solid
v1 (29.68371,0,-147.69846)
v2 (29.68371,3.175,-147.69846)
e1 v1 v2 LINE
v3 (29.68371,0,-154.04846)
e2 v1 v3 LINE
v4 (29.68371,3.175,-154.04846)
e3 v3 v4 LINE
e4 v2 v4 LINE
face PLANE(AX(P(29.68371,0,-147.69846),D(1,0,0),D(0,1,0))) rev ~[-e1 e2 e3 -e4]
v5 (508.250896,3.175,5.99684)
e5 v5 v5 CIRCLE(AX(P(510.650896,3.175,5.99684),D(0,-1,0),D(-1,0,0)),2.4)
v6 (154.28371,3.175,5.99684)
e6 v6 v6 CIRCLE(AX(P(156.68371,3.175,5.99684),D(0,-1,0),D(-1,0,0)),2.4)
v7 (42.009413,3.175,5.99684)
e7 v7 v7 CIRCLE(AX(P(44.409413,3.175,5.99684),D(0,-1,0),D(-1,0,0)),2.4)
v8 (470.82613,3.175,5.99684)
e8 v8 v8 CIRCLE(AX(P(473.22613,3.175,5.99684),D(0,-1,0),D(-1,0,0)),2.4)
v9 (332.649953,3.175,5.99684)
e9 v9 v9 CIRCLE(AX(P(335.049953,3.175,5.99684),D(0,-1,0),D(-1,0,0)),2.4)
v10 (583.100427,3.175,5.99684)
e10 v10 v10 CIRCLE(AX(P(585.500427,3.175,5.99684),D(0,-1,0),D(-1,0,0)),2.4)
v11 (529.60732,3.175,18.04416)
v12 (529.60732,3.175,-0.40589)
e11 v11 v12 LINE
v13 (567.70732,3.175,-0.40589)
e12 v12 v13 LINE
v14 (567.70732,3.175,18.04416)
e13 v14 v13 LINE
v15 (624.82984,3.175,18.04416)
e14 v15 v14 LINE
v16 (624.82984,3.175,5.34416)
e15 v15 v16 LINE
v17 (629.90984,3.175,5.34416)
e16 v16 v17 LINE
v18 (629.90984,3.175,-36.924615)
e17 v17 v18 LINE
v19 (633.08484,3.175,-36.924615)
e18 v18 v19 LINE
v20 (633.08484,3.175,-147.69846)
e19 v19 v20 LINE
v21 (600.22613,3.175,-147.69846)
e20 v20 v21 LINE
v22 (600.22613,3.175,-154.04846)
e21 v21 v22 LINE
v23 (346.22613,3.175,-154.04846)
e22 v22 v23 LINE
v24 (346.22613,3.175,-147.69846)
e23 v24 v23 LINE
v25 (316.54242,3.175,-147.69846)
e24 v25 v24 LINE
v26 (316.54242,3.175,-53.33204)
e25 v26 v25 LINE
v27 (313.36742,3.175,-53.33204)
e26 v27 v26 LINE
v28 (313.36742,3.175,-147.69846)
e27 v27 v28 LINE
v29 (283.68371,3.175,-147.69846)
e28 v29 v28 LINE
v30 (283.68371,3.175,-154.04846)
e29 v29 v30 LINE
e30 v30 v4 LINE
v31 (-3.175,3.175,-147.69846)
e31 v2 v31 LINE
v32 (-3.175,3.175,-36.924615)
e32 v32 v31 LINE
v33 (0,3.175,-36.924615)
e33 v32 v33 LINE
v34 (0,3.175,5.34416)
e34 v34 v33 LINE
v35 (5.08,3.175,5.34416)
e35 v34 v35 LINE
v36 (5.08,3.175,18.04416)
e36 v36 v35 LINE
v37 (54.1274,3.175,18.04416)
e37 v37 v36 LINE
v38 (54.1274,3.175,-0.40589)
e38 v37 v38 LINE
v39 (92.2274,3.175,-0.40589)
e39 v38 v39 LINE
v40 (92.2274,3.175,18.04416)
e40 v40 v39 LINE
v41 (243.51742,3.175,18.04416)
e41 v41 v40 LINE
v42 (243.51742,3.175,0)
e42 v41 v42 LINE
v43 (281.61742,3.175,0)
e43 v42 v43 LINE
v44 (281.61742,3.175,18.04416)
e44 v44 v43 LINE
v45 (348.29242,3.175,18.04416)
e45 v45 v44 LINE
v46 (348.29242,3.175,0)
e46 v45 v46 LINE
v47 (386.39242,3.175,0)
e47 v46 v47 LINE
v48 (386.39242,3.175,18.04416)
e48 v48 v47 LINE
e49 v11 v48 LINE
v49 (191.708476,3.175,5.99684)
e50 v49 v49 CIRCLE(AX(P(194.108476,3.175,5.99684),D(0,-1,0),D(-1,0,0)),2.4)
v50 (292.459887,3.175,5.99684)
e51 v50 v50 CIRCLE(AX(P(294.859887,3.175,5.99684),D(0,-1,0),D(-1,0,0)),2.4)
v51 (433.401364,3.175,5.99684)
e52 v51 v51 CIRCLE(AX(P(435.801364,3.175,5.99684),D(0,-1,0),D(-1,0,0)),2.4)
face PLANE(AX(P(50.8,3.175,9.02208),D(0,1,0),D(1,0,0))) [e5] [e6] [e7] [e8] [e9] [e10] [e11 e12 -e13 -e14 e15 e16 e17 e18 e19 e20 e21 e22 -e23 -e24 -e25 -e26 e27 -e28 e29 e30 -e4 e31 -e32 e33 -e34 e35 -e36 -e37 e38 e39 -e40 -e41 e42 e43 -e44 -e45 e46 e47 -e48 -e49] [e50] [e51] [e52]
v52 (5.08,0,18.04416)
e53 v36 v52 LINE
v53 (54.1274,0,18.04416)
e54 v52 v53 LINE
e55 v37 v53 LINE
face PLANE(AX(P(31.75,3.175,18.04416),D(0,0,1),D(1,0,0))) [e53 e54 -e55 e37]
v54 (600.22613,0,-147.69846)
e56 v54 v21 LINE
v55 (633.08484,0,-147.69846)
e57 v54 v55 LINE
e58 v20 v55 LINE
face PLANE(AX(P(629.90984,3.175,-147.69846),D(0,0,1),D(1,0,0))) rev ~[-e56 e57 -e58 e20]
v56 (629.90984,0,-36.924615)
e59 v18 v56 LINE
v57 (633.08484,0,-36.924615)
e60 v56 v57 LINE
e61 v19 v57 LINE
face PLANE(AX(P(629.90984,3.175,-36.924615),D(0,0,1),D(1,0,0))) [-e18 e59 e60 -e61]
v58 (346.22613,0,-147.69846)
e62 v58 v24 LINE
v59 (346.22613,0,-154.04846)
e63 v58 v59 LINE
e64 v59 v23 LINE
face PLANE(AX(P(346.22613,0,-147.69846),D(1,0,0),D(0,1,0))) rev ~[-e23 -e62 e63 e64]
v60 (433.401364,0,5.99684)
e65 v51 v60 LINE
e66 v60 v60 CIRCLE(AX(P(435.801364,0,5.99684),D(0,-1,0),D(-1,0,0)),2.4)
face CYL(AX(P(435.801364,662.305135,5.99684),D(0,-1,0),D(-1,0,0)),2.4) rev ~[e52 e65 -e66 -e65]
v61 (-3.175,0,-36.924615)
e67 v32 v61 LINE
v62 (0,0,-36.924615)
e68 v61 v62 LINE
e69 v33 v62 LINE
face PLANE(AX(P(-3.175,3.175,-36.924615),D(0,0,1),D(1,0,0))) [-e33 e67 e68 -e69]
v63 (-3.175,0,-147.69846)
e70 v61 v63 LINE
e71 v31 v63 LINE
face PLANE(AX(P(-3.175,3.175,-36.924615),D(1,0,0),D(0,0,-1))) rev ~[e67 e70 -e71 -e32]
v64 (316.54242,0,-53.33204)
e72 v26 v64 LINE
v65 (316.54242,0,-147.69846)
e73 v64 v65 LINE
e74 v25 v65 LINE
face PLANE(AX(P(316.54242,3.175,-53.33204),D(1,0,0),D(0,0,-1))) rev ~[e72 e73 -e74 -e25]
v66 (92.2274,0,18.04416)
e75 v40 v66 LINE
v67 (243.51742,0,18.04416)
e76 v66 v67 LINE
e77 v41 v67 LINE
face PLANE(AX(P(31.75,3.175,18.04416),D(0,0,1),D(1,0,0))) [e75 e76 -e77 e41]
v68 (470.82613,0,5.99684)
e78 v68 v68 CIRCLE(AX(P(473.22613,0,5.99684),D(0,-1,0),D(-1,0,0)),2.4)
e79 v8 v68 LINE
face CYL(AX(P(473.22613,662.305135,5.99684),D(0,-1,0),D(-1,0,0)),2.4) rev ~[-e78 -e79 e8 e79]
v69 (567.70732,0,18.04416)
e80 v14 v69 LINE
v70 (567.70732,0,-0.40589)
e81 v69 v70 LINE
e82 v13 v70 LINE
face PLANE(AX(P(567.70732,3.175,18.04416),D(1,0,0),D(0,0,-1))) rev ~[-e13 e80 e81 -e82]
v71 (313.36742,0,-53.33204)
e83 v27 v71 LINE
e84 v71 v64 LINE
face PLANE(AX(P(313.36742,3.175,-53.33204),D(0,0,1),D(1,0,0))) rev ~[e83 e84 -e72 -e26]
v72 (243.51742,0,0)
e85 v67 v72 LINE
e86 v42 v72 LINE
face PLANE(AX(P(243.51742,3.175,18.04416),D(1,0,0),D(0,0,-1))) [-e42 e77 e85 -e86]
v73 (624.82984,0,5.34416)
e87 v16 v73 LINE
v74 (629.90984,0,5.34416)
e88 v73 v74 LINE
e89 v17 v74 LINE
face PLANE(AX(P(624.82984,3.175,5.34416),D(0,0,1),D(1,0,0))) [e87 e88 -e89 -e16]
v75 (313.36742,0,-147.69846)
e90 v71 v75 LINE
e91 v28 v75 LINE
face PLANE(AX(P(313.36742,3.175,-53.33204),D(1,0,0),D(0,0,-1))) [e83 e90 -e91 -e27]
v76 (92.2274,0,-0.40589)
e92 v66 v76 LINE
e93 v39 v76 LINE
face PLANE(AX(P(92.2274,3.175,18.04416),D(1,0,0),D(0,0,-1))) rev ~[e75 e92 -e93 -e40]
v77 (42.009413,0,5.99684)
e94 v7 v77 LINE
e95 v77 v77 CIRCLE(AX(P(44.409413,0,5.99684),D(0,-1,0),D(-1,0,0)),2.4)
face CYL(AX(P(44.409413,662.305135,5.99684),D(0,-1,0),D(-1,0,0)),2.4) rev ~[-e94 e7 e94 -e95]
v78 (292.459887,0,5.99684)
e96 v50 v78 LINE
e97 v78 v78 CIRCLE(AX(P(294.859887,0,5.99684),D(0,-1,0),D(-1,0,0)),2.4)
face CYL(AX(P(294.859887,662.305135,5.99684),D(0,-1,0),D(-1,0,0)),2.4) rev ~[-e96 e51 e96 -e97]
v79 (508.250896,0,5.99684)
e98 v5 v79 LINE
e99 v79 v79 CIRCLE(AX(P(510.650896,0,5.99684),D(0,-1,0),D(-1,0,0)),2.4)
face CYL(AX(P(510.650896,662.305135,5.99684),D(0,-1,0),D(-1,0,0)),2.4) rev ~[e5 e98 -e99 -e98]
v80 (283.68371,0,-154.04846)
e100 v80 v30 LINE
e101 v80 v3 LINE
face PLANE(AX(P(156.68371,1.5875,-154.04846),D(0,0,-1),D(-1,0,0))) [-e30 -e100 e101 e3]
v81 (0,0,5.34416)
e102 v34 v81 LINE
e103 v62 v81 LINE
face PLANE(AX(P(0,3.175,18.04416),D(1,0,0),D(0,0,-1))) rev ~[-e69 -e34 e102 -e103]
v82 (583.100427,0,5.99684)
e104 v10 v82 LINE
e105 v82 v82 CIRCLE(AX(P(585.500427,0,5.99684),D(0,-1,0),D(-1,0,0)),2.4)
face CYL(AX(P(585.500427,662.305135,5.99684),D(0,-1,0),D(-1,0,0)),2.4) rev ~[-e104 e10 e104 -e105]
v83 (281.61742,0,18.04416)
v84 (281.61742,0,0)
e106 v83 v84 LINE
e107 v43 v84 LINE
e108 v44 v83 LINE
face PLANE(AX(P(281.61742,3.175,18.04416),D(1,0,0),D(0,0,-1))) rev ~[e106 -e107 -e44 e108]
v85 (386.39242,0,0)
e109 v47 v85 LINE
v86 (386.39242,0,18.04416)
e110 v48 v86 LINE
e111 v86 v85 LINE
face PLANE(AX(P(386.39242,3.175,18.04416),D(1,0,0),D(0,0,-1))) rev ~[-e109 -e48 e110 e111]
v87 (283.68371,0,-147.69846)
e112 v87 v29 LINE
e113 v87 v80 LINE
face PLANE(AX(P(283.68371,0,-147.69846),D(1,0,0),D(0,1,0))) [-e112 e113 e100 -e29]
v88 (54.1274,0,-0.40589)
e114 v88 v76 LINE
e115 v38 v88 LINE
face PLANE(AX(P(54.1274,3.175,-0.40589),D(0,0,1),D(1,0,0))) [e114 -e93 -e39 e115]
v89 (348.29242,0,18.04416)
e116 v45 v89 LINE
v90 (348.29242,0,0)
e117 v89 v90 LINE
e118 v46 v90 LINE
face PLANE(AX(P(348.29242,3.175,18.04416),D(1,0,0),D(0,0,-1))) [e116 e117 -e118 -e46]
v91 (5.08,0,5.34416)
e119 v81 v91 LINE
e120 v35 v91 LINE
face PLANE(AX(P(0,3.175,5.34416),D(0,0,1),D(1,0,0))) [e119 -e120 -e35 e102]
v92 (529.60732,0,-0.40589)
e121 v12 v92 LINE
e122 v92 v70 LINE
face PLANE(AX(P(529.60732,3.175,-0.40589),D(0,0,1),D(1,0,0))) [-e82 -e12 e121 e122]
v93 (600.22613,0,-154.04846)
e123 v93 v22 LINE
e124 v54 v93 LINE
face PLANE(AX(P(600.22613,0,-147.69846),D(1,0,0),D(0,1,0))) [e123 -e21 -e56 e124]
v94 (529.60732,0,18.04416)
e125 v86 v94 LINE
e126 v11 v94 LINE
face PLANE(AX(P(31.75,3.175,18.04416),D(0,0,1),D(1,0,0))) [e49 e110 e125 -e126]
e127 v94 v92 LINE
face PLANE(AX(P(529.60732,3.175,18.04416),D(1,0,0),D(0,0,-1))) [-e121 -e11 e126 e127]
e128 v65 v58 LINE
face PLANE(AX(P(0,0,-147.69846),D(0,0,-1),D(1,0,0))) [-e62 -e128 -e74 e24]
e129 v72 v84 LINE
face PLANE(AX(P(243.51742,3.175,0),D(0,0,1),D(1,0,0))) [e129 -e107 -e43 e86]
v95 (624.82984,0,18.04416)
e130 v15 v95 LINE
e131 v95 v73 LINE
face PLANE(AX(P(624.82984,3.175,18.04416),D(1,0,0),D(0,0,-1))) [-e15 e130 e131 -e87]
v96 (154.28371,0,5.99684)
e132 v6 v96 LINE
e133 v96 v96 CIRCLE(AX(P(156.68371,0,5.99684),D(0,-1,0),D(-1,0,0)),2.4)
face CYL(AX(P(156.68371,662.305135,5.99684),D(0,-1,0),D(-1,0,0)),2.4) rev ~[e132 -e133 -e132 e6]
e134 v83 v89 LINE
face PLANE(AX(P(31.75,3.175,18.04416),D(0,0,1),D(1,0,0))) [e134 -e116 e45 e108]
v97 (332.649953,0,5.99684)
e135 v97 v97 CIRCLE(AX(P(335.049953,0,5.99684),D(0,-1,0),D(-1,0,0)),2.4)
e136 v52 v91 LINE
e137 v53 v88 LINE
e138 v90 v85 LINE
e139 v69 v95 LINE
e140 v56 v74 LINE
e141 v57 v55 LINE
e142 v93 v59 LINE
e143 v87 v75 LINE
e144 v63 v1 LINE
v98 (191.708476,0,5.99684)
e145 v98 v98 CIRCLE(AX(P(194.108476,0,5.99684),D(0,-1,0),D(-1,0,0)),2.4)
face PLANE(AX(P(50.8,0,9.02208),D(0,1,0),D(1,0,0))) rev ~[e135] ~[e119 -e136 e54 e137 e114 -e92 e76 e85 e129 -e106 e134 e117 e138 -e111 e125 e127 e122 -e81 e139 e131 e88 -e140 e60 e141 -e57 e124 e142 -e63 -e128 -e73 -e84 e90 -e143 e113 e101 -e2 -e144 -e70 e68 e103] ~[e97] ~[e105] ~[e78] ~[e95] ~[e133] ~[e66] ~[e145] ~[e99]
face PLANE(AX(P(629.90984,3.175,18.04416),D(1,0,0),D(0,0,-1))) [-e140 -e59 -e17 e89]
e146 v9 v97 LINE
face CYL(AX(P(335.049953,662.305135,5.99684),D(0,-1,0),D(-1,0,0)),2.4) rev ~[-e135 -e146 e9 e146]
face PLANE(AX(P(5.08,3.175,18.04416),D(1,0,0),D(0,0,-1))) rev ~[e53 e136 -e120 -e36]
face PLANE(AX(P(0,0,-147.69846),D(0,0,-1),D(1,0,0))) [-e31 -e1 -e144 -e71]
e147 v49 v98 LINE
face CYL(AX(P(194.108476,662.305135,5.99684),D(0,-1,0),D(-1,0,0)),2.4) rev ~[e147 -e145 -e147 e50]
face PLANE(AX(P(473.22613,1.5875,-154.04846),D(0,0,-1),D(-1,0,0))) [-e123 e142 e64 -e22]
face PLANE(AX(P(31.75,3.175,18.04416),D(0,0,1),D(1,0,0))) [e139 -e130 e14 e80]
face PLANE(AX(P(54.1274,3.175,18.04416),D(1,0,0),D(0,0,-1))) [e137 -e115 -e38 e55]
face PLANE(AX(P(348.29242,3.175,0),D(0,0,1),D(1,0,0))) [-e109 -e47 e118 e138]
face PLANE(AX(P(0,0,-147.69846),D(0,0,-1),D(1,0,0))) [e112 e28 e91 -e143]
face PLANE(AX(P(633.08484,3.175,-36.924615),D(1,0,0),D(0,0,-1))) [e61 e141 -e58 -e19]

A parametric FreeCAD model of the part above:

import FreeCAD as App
import Part
import Sketcher
Q = App.Units.Quantity

doc = App.newDocument("Part")
body = doc.addObject("PartDesign::Body", "Body")

# Sketch on XZ plane
sketch1 = doc.addObject("Sketcher::SketchObject", "Sketch")
body.addObject(sketch1)
sketch1.AttachmentSupport = (doc.XZ_Plane, [""])
sketch1.MapMode = "FlatFace"
sketch1.addGeometry(Part.LineSegment(App.Vector(0, -148, 0), App.Vector(0, 0, 0)), False)
sketch1.addGeometry(Part.LineSegment(App.Vector(0, 0, 0), App.Vector(630, 0, 0)), False)
sketch1.addGeometry(Part.LineSegment(App.Vector(630, 0, 0), App.Vector(630, -148, 0)), False)
sketch1.addGeometry(Part.LineSegment(App.Vector(630, -148, 0), App.Vector(0, -148, 0)), False)
sketch1.addConstraint(Sketcher.Constraint("Coincident", 0, 2, 1, 1))
sketch1.addConstraint(Sketcher.Constraint("Coincident", 1, 2, 2, 1))
sketch1.addConstraint(Sketcher.Constraint("Coincident", 2, 2, 3, 1))
sketch1.addConstraint(Sketcher.Constraint("Coincident", 3, 2, 0, 1))
sketch1.addConstraint(Sketcher.Constraint("Vertical", 0))
sketch1.addConstraint(Sketcher.Constraint("Horizontal", 1))
sketch1.addConstraint(Sketcher.Constraint("Vertical", 2))
sketch1.addConstraint(Sketcher.Constraint("Horizontal", 3))
sketch1.addConstraint(Sketcher.Constraint("Coincident", 0, 2, -1, 1))
sketch1.addConstraint(Sketcher.Constraint("DistanceX", 1, 1, 1, 2, Q("24.7996 in")))
sketch1.addConstraint(Sketcher.Constraint("DistanceY", 0, 1, 0, 2, Q("5.8149 in")))
pad1 = doc.addObject("PartDesign::Pad", "Pad")
body.addObject(pad1)
pad1.Profile = sketch1
pad1.Length = Q("0.125 in")
pad1.Reversed = True

# Sketch on XY plane
sketch2 = doc.addObject("Sketcher::SketchObject", "Sketch001")
body.addObject(sketch2)
sketch2.AttachmentSupport = (doc.XY_Plane, [""])
sketch2.MapMode = "FlatFace"
sketch2.AttachmentOffset = App.Placement(App.Vector(0, 0, -5.8149 * 25.4), App.Rotation())
sketch2.addGeometry(Part.LineSegment(App.Vector(600.2, 3.2, 0), App.Vector(600.2, 0, 0)), False)
sketch2.addGeometry(Part.LineSegment(App.Vector(600.2, 0, 0), App.Vector(346.2, 0, 0)), False)
sketch2.addGeometry(Part.LineSegment(App.Vector(346.2, 0, 0), App.Vector(346.2, 3.2, 0)), False)
sketch2.addGeometry(Part.LineSegment(App.Vector(346.2, 3.2, 0), App.Vector(600.2, 3.2, 0)), False)
sketch2.addGeometry(Part.LineSegment(App.Vector(283.7, 3.2, 0), App.Vector(283.7, 0, 0)), False)
sketch2.addGeometry(Part.LineSegment(App.Vector(283.7, 0, 0), App.Vector(29.7, 0, 0)), False)
sketch2.addGeometry(Part.LineSegment(App.Vector(29.7, 0, 0), App.Vector(29.7, 3.2, 0)), False)
sketch2.addGeometry(Part.LineSegment(App.Vector(29.7, 3.2, 0), App.Vector(283.7, 3.2, 0)), False)
sketch2.addConstraint(Sketcher.Constraint("Coincident", 0, 2, 1, 1))
sketch2.addConstraint(Sketcher.Constraint("Coincident", 1, 2, 2, 1))
sketch2.addConstraint(Sketcher.Constraint("Coincident", 2, 2, 3, 1))
sketch2.addConstraint(Sketcher.Constraint("Coincident", 3, 2, 0, 1))
sketch2.addConstraint(Sketcher.Constraint("Coincident", 4, 2, 5, 1))
sketch2.addConstraint(Sketcher.Constraint("Coincident", 5, 2, 6, 1))
sketch2.addConstraint(Sketcher.Constraint("Coincident", 6, 2, 7, 1))
sketch2.addConstraint(Sketcher.Constraint("Coincident", 7, 2, 4, 1))
sketch2.addConstraint(Sketcher.Constraint("Vertical", 0))
sketch2.addConstraint(Sketcher.Constraint("Horizontal", 1))
sketch2.addConstraint(Sketcher.Constraint("Vertical", 2))
sketch2.addConstraint(Sketcher.Constraint("Horizontal", 3))
sketch2.addConstraint(Sketcher.Constraint("Vertical", 4))
sketch2.addConstraint(Sketcher.Constraint("Horizontal", 5))
sketch2.addConstraint(Sketcher.Constraint("Vertical", 6))
sketch2.addConstraint(Sketcher.Constraint("Horizontal", 7))
sketch2.addConstraint(Sketcher.Constraint("PointOnObject", 0, 2, -1))
sketch2.addConstraint(Sketcher.Constraint("PointOnObject", 4, 2, -1))
sketch2.addConstraint(Sketcher.Constraint("Horizontal", 3, 2, 6, 2))
sketch2.addConstraint(Sketcher.Constraint("Equal", 3, 5))
sketch2.addConstraint(Sketcher.Constraint("DistanceX", 1, 2, 1, 1, Q("10 in")))
sketch2.addConstraint(Sketcher.Constraint("DistanceY", 0, 2, 0, 1, Q("0.125 in")))
sketch2.addConstraint(Sketcher.Constraint("DistanceX", 4, 2, 1, 2, Q("2.4623 in")))
sketch2.addConstraint(Sketcher.Constraint("DistanceX", -1, 1, 0, 2, Q("600.22613 mm")))
pad2 = doc.addObject("PartDesign::Pad", "Pad001")
body.addObject(pad2)
pad2.Profile = sketch2
pad2.Length = Q("0.25 in")
pad2.Reversed = True

# Sketch on XZ plane
sketch3 = doc.addObject("Sketcher::SketchObject", "Sketch002")
body.addObject(sketch3)
sketch3.AttachmentSupport = (doc.XZ_Plane, [""])
sketch3.MapMode = "FlatFace"
sketch3.AttachmentOffset = App.Placement(App.Vector(0, 0, -0.125 * 25.4), App.Rotation())
sketch3.addGeometry(Part.LineSegment(App.Vector(313.4, -242.1, 0), App.Vector(313.4, -53.3, 0)), False)
sketch3.addGeometry(Part.LineSegment(App.Vector(313.4, -53.3, 0), App.Vector(316.5, -53.3, 0)), False)
sketch3.addGeometry(Part.LineSegment(App.Vector(316.5, -53.3, 0), App.Vector(316.5, -242.1, 0)), False)
sketch3.addGeometry(Part.LineSegment(App.Vector(316.5, -242.1, 0), App.Vector(313.4, -242.1, 0)), False)
sketch3.addConstraint(Sketcher.Constraint("Coincident", 0, 2, 1, 1))
sketch3.addConstraint(Sketcher.Constraint("Coincident", 1, 2, 2, 1))
sketch3.addConstraint(Sketcher.Constraint("Coincident", 2, 2, 3, 1))
sketch3.addConstraint(Sketcher.Constraint("Coincident", 3, 2, 0, 1))
sketch3.addConstraint(Sketcher.Constraint("Vertical", 0))
sketch3.addConstraint(Sketcher.Constraint("Horizontal", 1))
sketch3.addConstraint(Sketcher.Constraint("Vertical", 2))
sketch3.addConstraint(Sketcher.Constraint("Horizontal", 3))
sketch3.addConstraint(Sketcher.Constraint("DistanceX", 1, 1, 1, 2, Q("0.125 in")))
sketch3.addConstraint(Sketcher.Constraint("DistanceX", -1, 1, 0, 2, Q("12.3373 in")))
sketch3.addConstraint(Sketcher.Constraint("DistanceY", 0, 1, 0, 2, Q("188.73284 mm")))
sketch3.addConstraint(Sketcher.Constraint("DistanceY", 0, 2, -1, 1, Q("53.33204 mm")))
pocket1 = doc.addObject("PartDesign::Pocket", "Pocket")
body.addObject(pocket1)
pocket1.Profile = sketch3
pocket1.Length = Q("0.125 in")
pocket1.Reversed = True

# Sketch on XZ plane
sketch4 = doc.addObject("Sketcher::SketchObject", "Sketch003")
body.addObject(sketch4)
sketch4.AttachmentSupport = (doc.XZ_Plane, [""])
sketch4.MapMode = "FlatFace"
sketch4.AttachmentOffset = App.Placement(App.Vector(0, 0, -0.125 * 25.4), App.Rotation())
sketch4.addGeometry(Part.LineSegment(App.Vector(629.9, -147.7, 0), App.Vector(629.9, -36.9, 0)), False)
sketch4.addGeometry(Part.LineSegment(App.Vector(629.9, -36.9, 0), App.Vector(633.1, -36.9, 0)), False)
sketch4.addGeometry(Part.LineSegment(App.Vector(633.1, -36.9, 0), App.Vector(633.1, -147.7, 0)), False)
sketch4.addGeometry(Part.LineSegment(App.Vector(633.1, -147.7, 0), App.Vector(629.9, -147.7, 0)), False)
sketch4.addGeometry(Part.LineSegment(App.Vector(-3.2, -147.7, 0), App.Vector(-3.2, -36.9, 0)), False)
sketch4.addGeometry(Part.LineSegment(App.Vector(-3.2, -36.9, 0), App.Vector(0, -36.9, 0)), False)
sketch4.addGeometry(Part.LineSegment(App.Vector(0, -36.9, 0), App.Vector(0, -147.7, 0)), False)
sketch4.addGeometry(Part.LineSegment(App.Vector(0, -147.7, 0), App.Vector(-3.2, -147.7, 0)), False)
sketch4.addConstraint(Sketcher.Constraint("Coincident", 0, 2, 1, 1))
sketch4.addConstraint(Sketcher.Constraint("Coincident", 1, 2, 2, 1))
sketch4.addConstraint(Sketcher.Constraint("Coincident", 2, 2, 3, 1))
sketch4.addConstraint(Sketcher.Constraint("Coincident", 3, 2, 0, 1))
sketch4.addConstraint(Sketcher.Constraint("Coincident", 4, 2, 5, 1))
sketch4.addConstraint(Sketcher.Constraint("Coincident", 5, 2, 6, 1))
sketch4.addConstraint(Sketcher.Constraint("Coincident", 6, 2, 7, 1))
sketch4.addConstraint(Sketcher.Constraint("Coincident", 7, 2, 4, 1))
sketch4.addConstraint(Sketcher.Constraint("Vertical", 0))
sketch4.addConstraint(Sketcher.Constraint("Horizontal", 1))
sketch4.addConstraint(Sketcher.Constraint("Vertical", 2))
sketch4.addConstraint(Sketcher.Constraint("Horizontal", 3))
sketch4.addConstraint(Sketcher.Constraint("Vertical", 4))
sketch4.addConstraint(Sketcher.Constraint("Horizontal", 5))
sketch4.addConstraint(Sketcher.Constraint("Vertical", 6))
sketch4.addConstraint(Sketcher.Constraint("Horizontal", 7))
sketch4.addConstraint(Sketcher.Constraint("PointOnObject", 5, 2, -2))
sketch4.addConstraint(Sketcher.Constraint("Horizontal", 1, 2, 4, 2))
sketch4.addConstraint(Sketcher.Constraint("Horizontal", 3, 2, 6, 2))
sketch4.addConstraint(Sketcher.Constraint("Equal", 3, 5))
sketch4.addConstraint(Sketcher.Constraint("DistanceX", 1, 1, 1, 2, Q("0.125 in")))
sketch4.addConstraint(Sketcher.Constraint("DistanceX", -1, 1, 0, 2, Q("24.7996 in")))
sketch4.addConstraint(Sketcher.Constraint("DistanceY", 2, 2, -1, 1, Q("5.8149 in")))
sketch4.addConstraint(Sketcher.Constraint("DistanceY", 0, 1, 0, 2, Q("110.773845 mm")))
pad3 = doc.addObject("PartDesign::Pad", "Pad002")
body.addObject(pad3)
pad3.Profile = sketch4
pad3.Length = Q("0.125 in")

# Sketch on XZ plane
sketch5 = doc.addObject("Sketcher::SketchObject", "Sketch004")
body.addObject(sketch5)
sketch5.AttachmentSupport = (doc.XZ_Plane, [""])
sketch5.MapMode = "FlatFace"
sketch5.AttachmentOffset = App.Placement(App.Vector(0, 0, -0.125 * 25.4), App.Rotation())
sketch5.addGeometry(Part.LineSegment(App.Vector(0, 0, 0), App.Vector(0, 18, 0)), False)
sketch5.addGeometry(Part.LineSegment(App.Vector(0, 18, 0), App.Vector(630, 18, 0)), False)
sketch5.addGeometry(Part.LineSegment(App.Vector(630, 18, 0), App.Vector(630, 0, 0)), False)
sketch5.addGeometry(Part.LineSegment(App.Vector(630, 0, 0), App.Vector(0, 0, 0)), False)
sketch5.addConstraint(Sketcher.Constraint("Coincident", 0, 2, 1, 1))
sketch5.addConstraint(Sketcher.Constraint("Coincident", 1, 2, 2, 1))
sketch5.addConstraint(Sketcher.Constraint("Coincident", 2, 2, 3, 1))
sketch5.addConstraint(Sketcher.Constraint("Coincident", 3, 2, 0, 1))
sketch5.addConstraint(Sketcher.Constraint("Vertical", 0))
sketch5.addConstraint(Sketcher.Constraint("Horizontal", 1))
sketch5.addConstraint(Sketcher.Constraint("Vertical", 2))
sketch5.addConstraint(Sketcher.Constraint("Horizontal", 3))
sketch5.addConstraint(Sketcher.Constraint("Coincident", 3, 2, -1, 1))
sketch5.addConstraint(Sketcher.Constraint("DistanceX", 1, 1, 1, 2, Q("24.7996 in")))
sketch5.addConstraint(Sketcher.Constraint("DistanceY", 0, 1, 0, 2, Q("0.7104 in")))
pad4 = doc.addObject("PartDesign::Pad", "Pad003")
body.addObject(pad4)
pad4.Profile = sketch5
pad4.Length = Q("0.125 in")

# Sketch on XZ plane
sketch6 = doc.addObject("Sketcher::SketchObject", "Sketch005")
body.addObject(sketch6)
sketch6.AttachmentSupport = (doc.XZ_Plane, [""])
sketch6.MapMode = "FlatFace"
sketch6.AttachmentOffset = App.Placement(App.Vector(0, 0, -0.125 * 25.4), App.Rotation())
sketch6.addGeometry(Part.LineSegment(App.Vector(560, 0, 0), App.Vector(560, 36, 0)), False)
sketch6.addGeometry(Part.LineSegment(App.Vector(560, 36, 0), App.Vector(598, 36, 0)), False)
sketch6.addGeometry(Part.LineSegment(App.Vector(598, 36, 0), App.Vector(598, 0, 0)), False)
sketch6.addGeometry(Part.LineSegment(App.Vector(598, 0, 0), App.Vector(560, 0, 0)), False)
sketch6.addGeometry(Part.LineSegment(App.Vector(32, 0, 0), App.Vector(32, 36, 0)), False)
sketch6.addGeometry(Part.LineSegment(App.Vector(32, 36, 0), App.Vector(70, 36, 0)), False)
sketch6.addGeometry(Part.LineSegment(App.Vector(70, 36, 0), App.Vector(70, 0, 0)), False)
sketch6.addGeometry(Part.LineSegment(App.Vector(70, 0, 0), App.Vector(32, 0, 0)), False)
sketch6.addConstraint(Sketcher.Constraint("Coincident", 0, 2, 1, 1))
sketch6.addConstraint(Sketcher.Constraint("Coincident", 1, 2, 2, 1))
sketch6.addConstraint(Sketcher.Constraint("Coincident", 2, 2, 3, 1))
sketch6.addConstraint(Sketcher.Constraint("Coincident", 3, 2, 0, 1))
sketch6.addConstraint(Sketcher.Constraint("Coincident", 4, 2, 5, 1))
sketch6.addConstraint(Sketcher.Constraint("Coincident", 5, 2, 6, 1))
sketch6.addConstraint(Sketcher.Constraint("Coincident", 6, 2, 7, 1))
sketch6.addConstraint(Sketcher.Constraint("Coincident", 7, 2, 4, 1))
sketch6.addConstraint(Sketcher.Constraint("Vertical", 0))
sketch6.addConstraint(Sketcher.Constraint("Horizontal", 1))
sketch6.addConstraint(Sketcher.Constraint("Vertical", 2))
sketch6.addConstraint(Sketcher.Constraint("Horizontal", 3))
sketch6.addConstraint(Sketcher.Constraint("Vertical", 4))
sketch6.addConstraint(Sketcher.Constraint("Horizontal", 5))
sketch6.addConstraint(Sketcher.Constraint("Vertical", 6))
sketch6.addConstraint(Sketcher.Constraint("Horizontal", 7))
sketch6.addConstraint(Sketcher.Constraint("PointOnObject", 2, 2, -1))
sketch6.addConstraint(Sketcher.Constraint("PointOnObject", 6, 2, -1))
sketch6.addConstraint(Sketcher.Constraint("Horizontal", 1, 2, 4, 2))
sketch6.addConstraint(Sketcher.Constraint("Equal", 3, 5))
sketch6.addConstraint(Sketcher.Constraint("DistanceX", 1, 1, 1, 2, Q("1.5 in")))
sketch6.addConstraint(Sketcher.Constraint("DistanceX", -1, 1, 4, 2, Q("1.25 in")))
sketch6.addConstraint(Sketcher.Constraint("DistanceY", 0, 1, 0, 2, Q("1.4208 in")))
sketch6.addConstraint(Sketcher.Constraint("DistanceX", -1, 1, 0, 2, Q("22.0496 in")))
pocket2 = doc.addObject("PartDesign::Pocket", "Pocket001")
body.addObject(pocket2)
pocket2.Profile = sketch6
pocket2.Type = "ThroughAll"
pocket2.Reversed = True

# Sketch on XZ plane
sketch7 = doc.addObject("Sketcher::SketchObject", "Sketch006")
body.addObject(sketch7)
sketch7.AttachmentSupport = (doc.XZ_Plane, [""])
sketch7.MapMode = "FlatFace"
sketch7.AttachmentOffset = App.Placement(App.Vector(0, 0, -0.125 * 25.4), App.Rotation())
sketch7.addGeometry(Part.LineSegment(App.Vector(32, 0, 0), App.Vector(32, 18, 0)), False)
sketch7.addGeometry(Part.LineSegment(App.Vector(32, 18, 0), App.Vector(70, 18, 0)), False)
sketch7.addGeometry(Part.LineSegment(App.Vector(70, 18, 0), App.Vector(70, 0, 0)), False)
sketch7.addGeometry(Part.LineSegment(App.Vector(70, 0, 0), App.Vector(32, 0, 0)), False)
sketch7.addGeometry(Part.LineSegment(App.Vector(560, 0, 0), App.Vector(560, 18, 0)), False)
sketch7.addGeometry(Part.LineSegment(App.Vector(560, 18, 0), App.Vector(598, 18, 0)), False)
sketch7.addGeometry(Part.LineSegment(App.Vector(598, 18, 0), App.Vector(598, 0, 0)), False)
sketch7.addGeometry(Part.LineSegment(App.Vector(598, 0, 0), App.Vector(560, 0, 0)), False)
sketch7.addConstraint(Sketcher.Constraint("Coincident", 0, 2, 1, 1))
sketch7.addConstraint(Sketcher.Constraint("Coincident", 1, 2, 2, 1))
sketch7.addConstraint(Sketcher.Constraint("Coincident", 2, 2, 3, 1))
sketch7.addConstraint(Sketcher.Constraint("Coincident", 3, 2, 0, 1))
sketch7.addConstraint(Sketcher.Constraint("Coincident", 4, 2, 5, 1))
sketch7.addConstraint(Sketcher.Constraint("Coincident", 5, 2, 6, 1))
sketch7.addConstraint(Sketcher.Constraint("Coincident", 6, 2, 7, 1))
sketch7.addConstraint(Sketcher.Constraint("Coincident", 7, 2, 4, 1))
sketch7.addConstraint(Sketcher.Constraint("Vertical", 0))
sketch7.addConstraint(Sketcher.Constraint("Horizontal", 1))
sketch7.addConstraint(Sketcher.Constraint("Vertical", 2))
sketch7.addConstraint(Sketcher.Constraint("Horizontal", 3))
sketch7.addConstraint(Sketcher.Constraint("Vertical", 4))
sketch7.addConstraint(Sketcher.Constraint("Horizontal", 5))
sketch7.addConstraint(Sketcher.Constraint("Vertical", 6))
sketch7.addConstraint(Sketcher.Constraint("Horizontal", 7))
sketch7.addConstraint(Sketcher.Constraint("PointOnObject", 2, 2, -1))
sketch7.addConstraint(Sketcher.Constraint("PointOnObject", 6, 2, -1))
sketch7.addConstraint(Sketcher.Constraint("Horizontal", 1, 2, 4, 2))
sketch7.addConstraint(Sketcher.Constraint("Equal", 3, 5))
sketch7.addConstraint(Sketcher.Constraint("DistanceX", 1, 1, 1, 2, Q("1.5 in")))
sketch7.addConstraint(Sketcher.Constraint("DistanceX", -1, 1, 0, 2, Q("1.25 in")))
sketch7.addConstraint(Sketcher.Constraint("DistanceY", 0, 1, 0, 2, Q("0.7104 in")))
sketch7.addConstraint(Sketcher.Constraint("DistanceX", -1, 1, 4, 2, Q("22.0496 in")))
pad5 = doc.addObject("PartDesign::Pad", "Pad004")
body.addObject(pad5)
pad5.Profile = sketch7
pad5.Length = Q("0.125 in")

# Sketch on XZ plane
sketch8 = doc.addObject("Sketcher::SketchObject", "Sketch007")
body.addObject(sketch8)
sketch8.AttachmentSupport = (doc.XZ_Plane, [""])
sketch8.MapMode = "FlatFace"
sketch8.AttachmentOffset = App.Placement(App.Vector(0, 0, -0.125 * 25.4), App.Rotation())
sketch8.addGeometry(Part.LineSegment(App.Vector(244, 0, 0), App.Vector(244, 18, 0)), False)
sketch8.addGeometry(Part.LineSegment(App.Vector(244, 18, 0), App.Vector(282, 18, 0)), False)
sketch8.addGeometry(Part.LineSegment(App.Vector(282, 18, 0), App.Vector(282, 0, 0)), False)
sketch8.addGeometry(Part.LineSegment(App.Vector(282, 0, 0), App.Vector(244, 0, 0)), False)
sketch8.addGeometry(Part.LineSegment(App.Vector(348, 0, 0), App.Vector(348, 18, 0)), False)
sketch8.addGeometry(Part.LineSegment(App.Vector(348, 18, 0), App.Vector(386, 18, 0)), False)
sketch8.addGeometry(Part.LineSegment(App.Vector(386, 18, 0), App.Vector(386, 0, 0)), False)
sketch8.addGeometry(Part.LineSegment(App.Vector(386, 0, 0), App.Vector(348, 0, 0)), False)
sketch8.addConstraint(Sketcher.Constraint("Coincident", 0, 2, 1, 1))
sketch8.addConstraint(Sketcher.Constraint("Coincident", 1, 2, 2, 1))
sketch8.addConstraint(Sketcher.Constraint("Coincident", 2, 2, 3, 1))
sketch8.addConstraint(Sketcher.Constraint("Coincident", 3, 2, 0, 1))
sketch8.addConstraint(Sketcher.Constraint("Coincident", 4, 2, 5, 1))
sketch8.addConstraint(Sketcher.Constraint("Coincident", 5, 2, 6, 1))
sketch8.addConstraint(Sketcher.Constraint("Coincident", 6, 2, 7, 1))
sketch8.addConstraint(Sketcher.Constraint("Coincident", 7, 2, 4, 1))
sketch8.addConstraint(Sketcher.Constraint("Vertical", 0))
sketch8.addConstraint(Sketcher.Constraint("Horizontal", 1))
sketch8.addConstraint(Sketcher.Constraint("Vertical", 2))
sketch8.addConstraint(Sketcher.Constraint("Horizontal", 3))
sketch8.addConstraint(Sketcher.Constraint("Vertical", 4))
sketch8.addConstraint(Sketcher.Constraint("Horizontal", 5))
sketch8.addConstraint(Sketcher.Constraint("Vertical", 6))
sketch8.addConstraint(Sketcher.Constraint("Horizontal", 7))
sketch8.addConstraint(Sketcher.Constraint("PointOnObject", 2, 2, -1))
sketch8.addConstraint(Sketcher.Constraint("PointOnObject", 6, 2, -1))
sketch8.addConstraint(Sketcher.Constraint("Horizontal", 1, 2, 4, 2))
sketch8.addConstraint(Sketcher.Constraint("Equal", 3, 5))
sketch8.addConstraint(Sketcher.Constraint("DistanceX", 1, 1, 1, 2, Q("1.5 in")))
sketch8.addConstraint(Sketcher.Constraint("DistanceY", 0, 1, 0, 2, Q("0.7104 in")))
sketch8.addConstraint(Sketcher.Constraint("DistanceX", 1, 2, 4, 2, Q("2.625 in")))
sketch8.addConstraint(Sketcher.Constraint("DistanceX", -1, 1, 0, 2, Q("9.5873 in")))
pocket3 = doc.addObject("PartDesign::Pocket", "Pocket002")
body.addObject(pocket3)
pocket3.Profile = sketch8
pocket3.Type = "ThroughAll"
pocket3.Reversed = True

# Sketch on XZ plane
sketch9 = doc.addObject("Sketcher::SketchObject", "Sketch008")
body.addObject(sketch9)
sketch9.AttachmentSupport = (doc.XZ_Plane, [""])
sketch9.MapMode = "FlatFace"
sketch9.AttachmentOffset = App.Placement(App.Vector(0, 0, -0.125 * 25.4), App.Rotation())
sketch9.addGeometry(Part.LineSegment(App.Vector(54, 0, 0), App.Vector(54, 18, 0)), False)
sketch9.addGeometry(Part.LineSegment(App.Vector(54, 18, 0), App.Vector(92, 18, 0)), False)
sketch9.addGeometry(Part.LineSegment(App.Vector(92, 18, 0), App.Vector(92, 0, 0)), False)
sketch9.addGeometry(Part.LineSegment(App.Vector(92, 0, 0), App.Vector(54, 0, 0)), False)
sketch9.addGeometry(Part.LineSegment(App.Vector(530, 0, 0), App.Vector(530, 18, 0)), False)
sketch9.addGeometry(Part.LineSegment(App.Vector(530, 18, 0), App.Vector(568, 18, 0)), False)
sketch9.addGeometry(Part.LineSegment(App.Vector(568, 18, 0), App.Vector(568, 0, 0)), False)
sketch9.addGeometry(Part.LineSegment(App.Vector(568, 0, 0), App.Vector(530, 0, 0)), False)
sketch9.addConstraint(Sketcher.Constraint("Coincident", 0, 2, 1, 1))
sketch9.addConstraint(Sketcher.Constraint("Coincident", 1, 2, 2, 1))
sketch9.addConstraint(Sketcher.Constraint("Coincident", 2, 2, 3, 1))
sketch9.addConstraint(Sketcher.Constraint("Coincident", 3, 2, 0, 1))
sketch9.addConstraint(Sketcher.Constraint("Coincident", 4, 2, 5, 1))
sketch9.addConstraint(Sketcher.Constraint("Coincident", 5, 2, 6, 1))
sketch9.addConstraint(Sketcher.Constraint("Coincident", 6, 2, 7, 1))
sketch9.addConstraint(Sketcher.Constraint("Coincident", 7, 2, 4, 1))
sketch9.addConstraint(Sketcher.Constraint("Vertical", 0))
sketch9.addConstraint(Sketcher.Constraint("Horizontal", 1))
sketch9.addConstraint(Sketcher.Constraint("Vertical", 2))
sketch9.addConstraint(Sketcher.Constraint("Horizontal", 3))
sketch9.addConstraint(Sketcher.Constraint("Vertical", 4))
sketch9.addConstraint(Sketcher.Constraint("Horizontal", 5))
sketch9.addConstraint(Sketcher.Constraint("Vertical", 6))
sketch9.addConstraint(Sketcher.Constraint("Horizontal", 7))
sketch9.addConstraint(Sketcher.Constraint("Horizontal", 1, 2, 4, 2))
sketch9.addConstraint(Sketcher.Constraint("Horizontal", 3, 2, 6, 2))
sketch9.addConstraint(Sketcher.Constraint("Equal", 3, 5))
sketch9.addConstraint(Sketcher.Constraint("DistanceX", 1, 1, 1, 2, Q("1.5 in")))
sketch9.addConstraint(Sketcher.Constraint("DistanceX", -1, 1, 0, 2, Q("2.131 in")))
sketch9.addConstraint(Sketcher.Constraint("DistanceY", -1, 1, 0, 2, Q("0.7104 in")))
sketch9.addConstraint(Sketcher.Constraint("DistanceY", 0, 1, 0, 2, Q("18.45005 mm")))
sketch9.addConstraint(Sketcher.Constraint("DistanceX", -1, 1, 4, 2, Q("529.60732 mm")))
pocket4 = doc.addObject("PartDesign::Pocket", "Pocket003")
body.addObject(pocket4)
pocket4.Profile = sketch9
pocket4.Type = "ThroughAll"
pocket4.Reversed = True

# Sketch on XZ plane
sketch10 = doc.addObject("Sketcher::SketchObject", "Sketch009")
body.addObject(sketch10)
sketch10.AttachmentSupport = (doc.XZ_Plane, [""])
sketch10.MapMode = "FlatFace"
sketch10.AttachmentOffset = App.Placement(App.Vector(0, 0, -0.125 * 25.4), App.Rotation())
sketch10.addGeometry(Part.LineSegment(App.Vector(0, 5, 0), App.Vector(0, 18, 0)), False)
sketch10.addGeometry(Part.LineSegment(App.Vector(0, 18, 0), App.Vector(5, 18, 0)), False)
sketch10.addGeometry(Part.LineSegment(App.Vector(5, 18, 0), App.Vector(5, 5, 0)), False)
sketch10.addGeometry(Part.LineSegment(App.Vector(5, 5, 0), App.Vector(0, 5, 0)), False)
sketch10.addGeometry(Part.LineSegment(App.Vector(625, 5, 0), App.Vector(625, 18, 0)), False)
sketch10.addGeometry(Part.LineSegment(App.Vector(625, 18, 0), App.Vector(630, 18, 0)), False)
sketch10.addGeometry(Part.LineSegment(App.Vector(630, 18, 0), App.Vector(630, 5, 0)), False)
sketch10.addGeometry(Part.LineSegment(App.Vector(630, 5, 0), App.Vector(625, 5, 0)), False)
sketch10.addConstraint(Sketcher.Constraint("Coincident", 0, 2, 1, 1))
sketch10.addConstraint(Sketcher.Constraint("Coincident", 1, 2, 2, 1))
sketch10.addConstraint(Sketcher.Constraint("Coincident", 2, 2, 3, 1))
sketch10.addConstraint(Sketcher.Constraint("Coincident", 3, 2, 0, 1))
sketch10.addConstraint(Sketcher.Constraint("Coincident", 4, 2, 5, 1))
sketch10.addConstraint(Sketcher.Constraint("Coincident", 5, 2, 6, 1))
sketch10.addConstraint(Sketcher.Constraint("Coincident", 6, 2, 7, 1))
sketch10.addConstraint(Sketcher.Constraint("Coincident", 7, 2, 4, 1))
sketch10.addConstraint(Sketcher.Constraint("Vertical", 0))
sketch10.addConstraint(Sketcher.Constraint("Horizontal", 1))
sketch10.addConstraint(Sketcher.Constraint("Vertical", 2))
sketch10.addConstraint(Sketcher.Constraint("Horizontal", 3))
sketch10.addConstraint(Sketcher.Constraint("Vertical", 4))
sketch10.addConstraint(Sketcher.Constraint("Horizontal", 5))
sketch10.addConstraint(Sketcher.Constraint("Vertical", 6))
sketch10.addConstraint(Sketcher.Constraint("Horizontal", 7))
sketch10.addConstraint(Sketcher.Constraint("PointOnObject", 0, 2, -2))
sketch10.addConstraint(Sketcher.Constraint("Horizontal", 1, 2, 4, 2))
sketch10.addConstraint(Sketcher.Constraint("Horizontal", 3, 2, 6, 2))
sketch10.addConstraint(Sketcher.Constraint("Equal", 3, 5))
sketch10.addConstraint(Sketcher.Constraint("DistanceX", 1, 1, 1, 2, Q("0.2 in")))
sketch10.addConstraint(Sketcher.Constraint("DistanceY", 0, 1, 0, 2, Q("0.5 in")))
sketch10.addConstraint(Sketcher.Constraint("DistanceY", -1, 1, 0, 2, Q("0.7104 in")))
sketch10.addConstraint(Sketcher.Constraint("DistanceX", -1, 1, 4, 2, Q("24.5996 in")))
pocket5 = doc.addObject("PartDesign::Pocket", "Pocket004")
body.addObject(pocket5)
pocket5.Profile = sketch10
pocket5.Type = "ThroughAll"
pocket5.Reversed = True

# Sketch on XZ plane
sketch11 = doc.addObject("Sketcher::SketchObject", "Sketch010")
body.addObject(sketch11)
sketch11.AttachmentSupport = (doc.XZ_Plane, [""])
sketch11.MapMode = "FlatFace"
sketch11.AttachmentOffset = App.Placement(App.Vector(0, 0, -0.125 * 25.4), App.Rotation())
sketch11.addGeometry(Part.Circle(App.Vector(44.4, 6, 0), App.Vector(0, 0, 1), 2.4), False)
sketch11.addGeometry(Part.Circle(App.Vector(156.7, 6, 0), App.Vector(0, 0, 1), 2.4), False)
sketch11.addGeometry(Part.Circle(App.Vector(194.1, 6, 0), App.Vector(0, 0, 1), 2.4), False)
sketch11.addGeometry(Part.Circle(App.Vector(294.9, 6, 0), App.Vector(0, 0, 1), 2.4), False)
sketch11.addGeometry(Part.Circle(App.Vector(335, 6, 0), App.Vector(0, 0, 1), 2.4), False)
sketch11.addGeometry(Part.Circle(App.Vector(435.8, 6, 0), App.Vector(0, 0, 1), 2.4), False)
sketch11.addGeometry(Part.Circle(App.Vector(473.2, 6, 0), App.Vector(0, 0, 1), 2.4), False)
sketch11.addGeometry(Part.Circle(App.Vector(510.7, 6, 0), App.Vector(0, 0, 1), 2.4), False)
sketch11.addGeometry(Part.Circle(App.Vector(585.5, 6, 0), App.Vector(0, 0, 1), 2.4), False)
sketch11.addConstraint(Sketcher.Constraint("Equal", 0, 1))
sketch11.addConstraint(Sketcher.Constraint("Equal", 1, 2))
sketch11.addConstraint(Sketcher.Constraint("Equal", 2, 3))
sketch11.addConstraint(Sketcher.Constraint("Equal", 3, 4))
sketch11.addConstraint(Sketcher.Constraint("Equal", 4, 5))
sketch11.addConstraint(Sketcher.Constraint("Equal", 5, 6))
sketch11.addConstraint(Sketcher.Constraint("Equal", 6, 7))
sketch11.addConstraint(Sketcher.Constraint("Equal", 7, 8))
sketch11.addConstraint(Sketcher.Constraint("Horizontal", 0, 3, 1, 3))
sketch11.addConstraint(Sketcher.Constraint("Horizontal", 1, 3, 2, 3))
sketch11.addConstraint(Sketcher.Constraint("Horizontal", 2, 3, 3, 3))
sketch11.addConstraint(Sketcher.Constraint("Horizontal", 3, 3, 4, 3))
sketch11.addConstraint(Sketcher.Constraint("Horizontal", 4, 3, 5, 3))
sketch11.addConstraint(Sketcher.Constraint("Horizontal", 5, 3, 6, 3))
sketch11.addConstraint(Sketcher.Constraint("Horizontal", 6, 3, 7, 3))
sketch11.addConstraint(Sketcher.Constraint("Horizontal", 7, 3, 8, 3))
sketch11.addConstraint(Sketcher.Constraint("Diameter", 0, Q("4.8 mm")))
sketch11.addConstraint(Sketcher.Constraint("DistanceX", 1, 3, 6, 3, Q("12.4623 in")))
sketch11.addConstraint(Sketcher.Constraint("DistanceX", 2, 3, 7, 3, Q("12.4623 in")))
sketch11.addConstraint(Sketcher.Constraint("DistanceY", -1, 1, 0, 3, Q("5.99684 mm")))
sketch11.addConstraint(Sketcher.Constraint("DistanceX", -1, 1, 1, 3, Q("156.68371 mm")))
sketch11.addConstraint(Sketcher.Constraint("DistanceX", 2, 3, 3, 3, Q("100.751411 mm")))
sketch11.addConstraint(Sketcher.Constraint("DistanceX", 0, 3, 4, 3, Q("290.640541 mm")))
sketch11.addConstraint(Sketcher.Constraint("DistanceX", 4, 3, 5, 3, Q("100.751411 mm")))
sketch11.addConstraint(Sketcher.Constraint("DistanceX", 2, 3, 5, 3, Q("241.692888 mm")))
sketch11.addConstraint(Sketcher.Constraint("DistanceX", 7, 3, 8, 3, Q("74.849532 mm")))
sketch11.addConstraint(Sketcher.Constraint("DistanceX", -1, 1, 0, 3, Q("44.409413 mm")))
doc.recompute()
hole = doc.addObject("PartDesign::Hole", "Hole")
body.addObject(hole)
hole.Profile = sketch11
hole.ThreadType = "None"
hole.Diameter = 4.8
hole.DepthType = "ThroughAll"
hole.Reversed = True

doc.recompute()
